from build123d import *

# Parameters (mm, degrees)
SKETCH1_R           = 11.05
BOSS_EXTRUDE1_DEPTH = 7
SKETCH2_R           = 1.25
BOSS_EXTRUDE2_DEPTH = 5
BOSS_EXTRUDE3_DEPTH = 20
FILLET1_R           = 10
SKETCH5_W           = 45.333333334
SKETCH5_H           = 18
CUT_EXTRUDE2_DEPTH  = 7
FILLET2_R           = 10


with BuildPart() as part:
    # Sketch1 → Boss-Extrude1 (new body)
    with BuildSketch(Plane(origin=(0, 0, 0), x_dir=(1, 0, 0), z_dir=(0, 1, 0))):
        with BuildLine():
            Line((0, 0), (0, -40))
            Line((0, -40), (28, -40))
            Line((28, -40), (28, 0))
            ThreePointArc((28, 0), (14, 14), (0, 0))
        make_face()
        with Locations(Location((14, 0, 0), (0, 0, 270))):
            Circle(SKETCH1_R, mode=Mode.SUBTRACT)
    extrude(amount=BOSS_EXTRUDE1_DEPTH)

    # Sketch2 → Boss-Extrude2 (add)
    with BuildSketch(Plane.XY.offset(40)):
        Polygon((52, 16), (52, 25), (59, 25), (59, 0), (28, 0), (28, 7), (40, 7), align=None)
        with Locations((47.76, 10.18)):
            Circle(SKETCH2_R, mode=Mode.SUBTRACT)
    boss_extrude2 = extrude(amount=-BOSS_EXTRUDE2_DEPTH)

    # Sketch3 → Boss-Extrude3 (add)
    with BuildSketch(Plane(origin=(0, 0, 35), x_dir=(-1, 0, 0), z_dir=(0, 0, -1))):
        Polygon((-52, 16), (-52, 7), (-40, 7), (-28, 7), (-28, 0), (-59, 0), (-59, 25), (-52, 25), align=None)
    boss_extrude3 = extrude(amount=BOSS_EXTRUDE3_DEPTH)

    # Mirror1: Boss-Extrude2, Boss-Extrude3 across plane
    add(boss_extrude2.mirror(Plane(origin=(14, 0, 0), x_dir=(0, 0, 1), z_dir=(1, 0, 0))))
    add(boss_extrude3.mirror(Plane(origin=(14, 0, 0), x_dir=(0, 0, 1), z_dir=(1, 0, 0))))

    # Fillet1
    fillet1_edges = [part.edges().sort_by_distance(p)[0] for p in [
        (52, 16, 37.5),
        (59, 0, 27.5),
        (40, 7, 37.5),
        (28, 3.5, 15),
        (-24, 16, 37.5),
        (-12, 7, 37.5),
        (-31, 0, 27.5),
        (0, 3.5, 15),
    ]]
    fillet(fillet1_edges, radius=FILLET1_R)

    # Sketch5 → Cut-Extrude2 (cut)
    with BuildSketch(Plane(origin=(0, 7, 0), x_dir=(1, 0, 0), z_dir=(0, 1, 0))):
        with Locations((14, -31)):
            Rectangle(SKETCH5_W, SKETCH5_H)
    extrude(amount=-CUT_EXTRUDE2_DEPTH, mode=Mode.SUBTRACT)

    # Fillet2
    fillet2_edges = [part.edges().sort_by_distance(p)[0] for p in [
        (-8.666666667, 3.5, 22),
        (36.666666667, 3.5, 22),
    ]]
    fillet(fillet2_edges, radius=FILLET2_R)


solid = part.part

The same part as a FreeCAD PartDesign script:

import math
import FreeCAD as App
import Part
import Sketcher

V = App.Vector
Q = App.Units.Quantity


def edges_at(feature, points):
    """Names of the edges that pass closest to the given points."""
    edges = feature.Shape.Edges
    near = lambda p: min(range(len(edges)), key=lambda i: edges[i].distToShape(Part.Vertex(*p))[0])
    return sorted({f"Edge{near(p) + 1}" for p in points})


def add_polygon(sketch, points):
    """Adds a closed chain of lines whose ends are joined by coincident constraints."""
    first, n = sketch.GeometryCount, len(points)
    for a, b in zip(points, points[1:] + points[:1]):
        sketch.addGeometry(Part.LineSegment(App.Vector(*a, 0), App.Vector(*b, 0)), False)
    for i in range(n):
        sketch.addConstraint(Sketcher.Constraint("Coincident", first + i, 2, first + (i + 1) % n, 1))

doc = App.newDocument("Part")
params = doc.addObject("Spreadsheet::Sheet", "Params")
for row, (alias, value) in enumerate([
    ("sketch1_radius", "14 mm"),
    ("sketch1_diameter", "22.1 mm"),
    ("sketch1_height", "40 mm"),
    ("pad1_length", "7 mm"),
    ("sketch2_diameter", "2.5 mm"),
    ("sketch2_width", "12 mm"),
    ("sketch2_width2", "31 mm"),
    ("sketch2_width3", "7 mm"),
    ("sketch2_height", "9 mm"),
    ("pad2_length", "5 mm"),
    ("sketch3_width", "7 mm"),
    ("sketch3_width2", "31 mm"),
    ("sketch3_height", "18 mm"),
    ("pad3_length", "20 mm"),
    ("fillet_radius", "10 mm"),
    ("sketch4_height", "18 mm"),
    ("pocket1_length", "7 mm"),
    ("fillet2_radius", "10 mm"),
], start=1):
    params.set(f"A{row}", alias)
    params.set(f"B{row}", "=" + value)
    params.setAlias(f"B{row}", alias)

body = doc.addObject("PartDesign::Body", "Body")

# Sketch on XZ plane
sketch1 = doc.addObject("Sketcher::SketchObject", "Sketch")
body.addObject(sketch1)
sketch1.AttachmentSupport = (doc.XZ_Plane, [""])
sketch1.MapMode = "FlatFace"
sketch1.addGeometry([
    Part.LineSegment(V(0, 0, 0), V(0, 40, 0)),  # 0
    Part.LineSegment(V(0, 40, 0), V(28, 40, 0)),  # 1
    Part.LineSegment(V(28, 40, 0), V(28, 0, 0)),  # 2
    Part.ArcOfCircle(Part.Circle(V(14, 0, 0), V(0, 0, 1), 14), math.radians(180), math.radians(360)),  # 3
    Part.Circle(V(14, 0, 0), V(0, 0, 1), 11),  # 4
], False)
sketch1.addConstraint([
    Sketcher.Constraint("Coincident", 0, 2, 1, 1),
    Sketcher.Constraint("Coincident", 1, 2, 2, 1),
    Sketcher.Constraint("Tangent", 2, 2, 3, 2),
    Sketcher.Constraint("Tangent", 3, 1, 0, 1),
    Sketcher.Constraint("Vertical", 0),
    Sketcher.Constraint("Horizontal", 1),
    Sketcher.Constraint("Vertical", 2),
    Sketcher.Constraint("Coincident", 3, 1, -1, 1),
    Sketcher.Constraint("Coincident", 4, 3, 3, 3),
    Sketcher.Constraint("Radius", 3, Q("14 mm")),
    Sketcher.Constraint("Diameter", 4, Q("22.1 mm")),
    Sketcher.Constraint("DistanceY", 0, 1, 0, 2, Q("40 mm")),
])
sketch1.setExpression("Constraints[9]", "Params.sketch1_radius")
sketch1.setExpression("Constraints[10]", "Params.sketch1_diameter")
sketch1.setExpression("Constraints[11]", "Params.sketch1_height")
pad1 = doc.addObject("PartDesign::Pad", "Pad")
body.addObject(pad1)
pad1.Profile = sketch1
pad1.setExpression("Length", "Params.pad1_length")
pad1.Reversed = True

# Sketch on XY plane
sketch2 = doc.addObject("Sketcher::SketchObject", "Sketch001")
body.addObject(sketch2)
sketch2.AttachmentSupport = (doc.XY_Plane, [""])
sketch2.MapMode = "FlatFace"
sketch2.AttachmentOffset = App.Placement(V(0, 0, 40), App.Rotation())
add_polygon(sketch2, [(52, 25), (52, 16), (40, 7), (28, 7), (28, 0), (59, 0), (59, 25)])  # lines 0-6
sketch2.addGeometry(Part.Circle(V(47.8, 10.2, 0), V(0, 0, 1), 1.2), False)  # 7
sketch2.addConstraint([
    Sketcher.Constraint("Vertical", 0),
    Sketcher.Constraint("Horizontal", 2),
    Sketcher.Constraint("Vertical", 3),
    Sketcher.Constraint("Horizontal", 4),
    Sketcher.Constraint("Vertical", 5),
    Sketcher.Constraint("Horizontal", 6),
    Sketcher.Constraint("PointOnObject", 3, 2, -1),
    Sketcher.Constraint("Equal", 6, 3),
    Sketcher.Constraint("Diameter", 7, Q("2.5 mm")),
    Sketcher.Constraint("DistanceX", 2, 2, 2, 1, Q("12 mm")),
    Sketcher.Constraint("DistanceX", 4, 1, 4, 2, Q("31 mm")),
    Sketcher.Constraint("DistanceX", 6, 2, 6, 1, Q("7 mm")),
    Sketcher.Constraint("DistanceY", 0, 2, 0, 1, Q("9 mm")),
    Sketcher.Constraint("DistanceY", 5, 1, 5, 2, Q("25 mm")),
    Sketcher.Constraint("DistanceX", -1, 1, 0, 2, Q("52 mm")),
    Sketcher.Constraint("DistanceX", -1, 1, 7, 3, Q("47.76 mm")),
    Sketcher.Constraint("DistanceY", -1, 1, 7, 3, Q("10.18 mm")),
])
sketch2.setExpression("Constraints[15]", "Params.sketch2_diameter")
sketch2.setExpression("Constraints[16]", "Params.sketch2_width")
sketch2.setExpression("Constraints[17]", "Params.sketch2_width2")
sketch2.setExpression("Constraints[18]", "Params.sketch2_width3")
sketch2.setExpression("Constraints[19]", "Params.sketch2_height")
pad2 = doc.addObject("PartDesign::Pad", "Pad001")
body.addObject(pad2)
pad2.Profile = sketch2
pad2.setExpression("Length", "Params.pad2_length")
pad2.Reversed = True

# Sketch on XY plane
sketch3 = doc.addObject("Sketcher::SketchObject", "Sketch002")
body.addObject(sketch3)
sketch3.AttachmentSupport = (doc.XY_Plane, [""])
sketch3.MapMode = "FlatFace"
sketch3.AttachmentOffset = App.Placement(V(0, 0, 35), App.Rotation())
add_polygon(sketch3, [(52, 7), (52, 25), (59, 25), (59, 0), (28, 0), (28, 7)])  # lines 0-5
sketch3.addConstraint([
    Sketcher.Constraint("Vertical", 0),
    Sketcher.Constraint("Horizontal", 1),
    Sketcher.Constraint("Vertical", 2),
    Sketcher.Constraint("Horizontal", 3),
    Sketcher.Constraint("Vertical", 4),
    Sketcher.Constraint("Horizontal", 5),
    Sketcher.Constraint("PointOnObject", 2, 2, -1),
    Sketcher.Constraint("Equal", 1, 4),
    Sketcher.Constraint("DistanceX", 1, 1, 1, 2, Q("7 mm")),
    Sketcher.Constraint("DistanceX", 3, 2, 3, 1, Q("31 mm")),
    Sketcher.Constraint("DistanceY", 0, 1, 0, 2, Q("18 mm")),
    Sketcher.Constraint("DistanceX", -1, 1, 0, 2, Q("52 mm")),
])
sketch3.setExpression("Constraints[14]", "Params.sketch3_width")
sketch3.setExpression("Constraints[15]", "Params.sketch3_width2")
sketch3.setExpression("Constraints[16]", "Params.sketch3_height")
pad3 = doc.addObject("PartDesign::Pad", "Pad002")
body.addObject(pad3)
pad3.Profile = sketch3
pad3.setExpression("Length", "Params.pad3_length")
pad3.Reversed = True
doc.recompute()

datumplane = doc.addObject("PartDesign::Plane", "DatumPlane")
body.addObject(datumplane)
datumplane.AttachmentSupport = (doc.YZ_Plane, [""])
datumplane.MapMode = "FlatFace"
datumplane.AttachmentOffset = App.Placement(V(0, 0, 14), App.Rotation())
mirrored = doc.addObject("PartDesign::Mirrored", "Mirrored")
body.addObject(mirrored)
mirrored.Originals = [pad2, pad3]
mirrored.MirrorPlane = (datumplane, [""])
body.Tip = mirrored
doc.recompute()

fillet = doc.addObject("PartDesign::Fillet", "Fillet")
body.addObject(fillet)
fillet.Base = (mirrored, edges_at(mirrored, [
    (52, 16, 37.5),
    (59, 0, 27.5),
    (40, 7, 37.5),
    (28, 3.5, 15),
    (-24, 16, 37.5),
    (-12, 7, 37.5),
    (-31, 0, 27.5),
    (0, 3.5, 15),
]))
fillet.setExpression("Radius", "Params.fillet_radius")

# Sketch on XZ plane
sketch4 = doc.addObject("Sketcher::SketchObject", "Sketch003")
body.addObject(sketch4)
sketch4.AttachmentSupport = (doc.XZ_Plane, [""])
sketch4.MapMode = "FlatFace"
sketch4.AttachmentOffset = App.Placement(V(0, 0, -7), App.Rotation())
add_polygon(sketch4, [(-9, 22), (-9, 40), (37, 40), (37, 22)])  # lines 0-3
sketch4.addConstraint([
    Sketcher.Constraint("Vertical", 0),
    Sketcher.Constraint("Horizontal", 1),
    Sketcher.Constraint("Vertical", 2),
    Sketcher.Constraint("Horizontal", 3),
    Sketcher.Constraint("DistanceY", 0, 1, 0, 2, Q("18 mm")),
    Sketcher.Constraint("DistanceY", -1, 1, 0, 2, Q("40 mm")),
    Sketcher.Constraint("DistanceX", 1, 1, 1, 2, Q("45.333333 mm")),
    Sketcher.Constraint("DistanceX", 0, 2, -1, 1, Q("8.666667 mm")),
])
sketch4.setExpression("Constraints[8]", "Params.sketch4_height")
pocket1 = doc.addObject("PartDesign::Pocket", "Pocket")
body.addObject(pocket1)
pocket1.Profile = sketch4
pocket1.setExpression("Length", "Params.pocket1_length")
pocket1.Reversed = True
doc.recompute()

fillet2 = doc.addObject("PartDesign::Fillet", "Fillet001")
body.addObject(fillet2)
fillet2.Base = (pocket1, edges_at(pocket1, [(-8.667, 3.5, 22), (36.667, 3.5, 22)]))
fillet2.setExpression("Radius", "Params.fillet2_radius")

doc.recompute()
